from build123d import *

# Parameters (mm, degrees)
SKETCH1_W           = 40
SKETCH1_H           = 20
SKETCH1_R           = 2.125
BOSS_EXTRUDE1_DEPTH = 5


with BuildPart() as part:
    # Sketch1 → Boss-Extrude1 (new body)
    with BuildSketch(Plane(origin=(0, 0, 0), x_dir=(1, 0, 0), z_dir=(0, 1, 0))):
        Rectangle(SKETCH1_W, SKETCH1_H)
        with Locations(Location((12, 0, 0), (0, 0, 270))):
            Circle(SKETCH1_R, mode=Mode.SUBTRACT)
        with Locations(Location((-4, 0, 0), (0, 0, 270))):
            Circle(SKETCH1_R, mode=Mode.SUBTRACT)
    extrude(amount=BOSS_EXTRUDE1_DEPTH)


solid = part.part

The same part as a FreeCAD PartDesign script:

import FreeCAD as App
import Part
import Sketcher
from FreeCAD import Vector

doc = App.newDocument("Part")
body = doc.addObject("PartDesign::Body", "Body")

sketch1 = body.newObject("Sketcher::SketchObject", "Sketch")
sketch1.AttachmentSupport = (doc.getObject("XZ_Plane"), [""])
sketch1.MapMode = "FlatFace"
sketch1.addGeometry(Part.LineSegment(Vector(-20, -10, 0), Vector(-20, 10, 0)), False)
sketch1.addGeometry(Part.LineSegment(Vector(-20, 10, 0), Vector(20, 10, 0)), False)
sketch1.addGeometry(Part.LineSegment(Vector(20, 10, 0), Vector(20, -10, 0)), False)
sketch1.addGeometry(Part.LineSegment(Vector(20, -10, 0), Vector(-20, -10, 0)), False)
sketch1.addGeometry(Part.Circle(Vector(-4, 0, 0), Vector(0, 0, 1), 2.125), False)
sketch1.addGeometry(Part.Circle(Vector(12, 0, 0), Vector(0, 0, 1), 2.125), False)
sketch1.addConstraint(Sketcher.Constraint("Coincident", 0, 2, 1, 1))
sketch1.addConstraint(Sketcher.Constraint("Coincident", 1, 2, 2, 1))
sketch1.addConstraint(Sketcher.Constraint("Coincident", 2, 2, 3, 1))
sketch1.addConstraint(Sketcher.Constraint("Coincident", 3, 2, 0, 1))
sketch1.addConstraint(Sketcher.Constraint("Vertical", 0))
sketch1.addConstraint(Sketcher.Constraint("Horizontal", 1))
sketch1.addConstraint(Sketcher.Constraint("Vertical", 2))
sketch1.addConstraint(Sketcher.Constraint("Horizontal", 3))
sketch1.addConstraint(Sketcher.Constraint("Equal", 4, 5))
sketch1.addConstraint(Sketcher.Constraint("Symmetric", 0, 2, 2, 2, -1, 1))
sketch1.addConstraint(Sketcher.Constraint("PointOnObject", 4, 3, -1))
sketch1.addConstraint(Sketcher.Constraint("PointOnObject", 5, 3, -1))
sketch1.addConstraint(Sketcher.Constraint("Diameter", 4, 4.25))
sketch1.addConstraint(Sketcher.Constraint("DistanceX", 1, 1, 1, 2, 40.0))
sketch1.addConstraint(Sketcher.Constraint("DistanceY", 0, 1, 0, 2, 20.0))
sketch1.addConstraint(Sketcher.Constraint("DistanceX", 4, 3, -1, 1, 4.0))
sketch1.addConstraint(Sketcher.Constraint("DistanceX", -1, 1, 5, 3, 12.0))
pad1 = body.newObject("PartDesign::Pad", "Pad")
pad1.Profile = sketch1
pad1.Length = 5
pad1.Reversed = True

doc.recompute()
